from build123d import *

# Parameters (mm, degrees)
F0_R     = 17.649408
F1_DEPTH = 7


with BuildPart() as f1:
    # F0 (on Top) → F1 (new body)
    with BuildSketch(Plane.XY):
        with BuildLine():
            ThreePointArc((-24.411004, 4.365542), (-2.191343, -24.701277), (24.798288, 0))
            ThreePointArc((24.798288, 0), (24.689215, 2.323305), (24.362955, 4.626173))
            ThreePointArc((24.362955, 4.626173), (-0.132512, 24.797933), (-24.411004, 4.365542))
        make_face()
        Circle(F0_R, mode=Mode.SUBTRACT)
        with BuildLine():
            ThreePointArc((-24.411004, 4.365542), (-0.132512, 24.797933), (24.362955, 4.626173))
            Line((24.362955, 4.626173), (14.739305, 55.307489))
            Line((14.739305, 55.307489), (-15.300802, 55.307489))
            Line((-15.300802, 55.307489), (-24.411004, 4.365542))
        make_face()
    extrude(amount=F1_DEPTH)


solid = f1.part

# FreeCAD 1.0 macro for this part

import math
import FreeCAD as App
import Part
import Sketcher
Q = App.Units.Quantity

doc = App.newDocument("Part")
body = doc.addObject("PartDesign::Body", "Body")

# Sketch on XY plane
sketch1 = body.newObject("Sketcher::SketchObject", "Sketch")
sketch1.AttachmentSupport = (doc.getObject("XY_Plane"), [""])
sketch1.MapMode = "FlatFace"
sketch1.addGeometry(Part.ArcOfCircle(Part.Circle(App.Vector(0, 0, 0), App.Vector(0, 0, 1), 24.798288), math.radians(169.860694), math.radians(360)), False)
sketch1.addGeometry(Part.ArcOfCircle(Part.Circle(App.Vector(0.00006, 0.000002, 0), App.Vector(0, 0, 1), 24.798228), math.radians(-0.000004), math.radians(10.751659)), False)
sketch1.addGeometry(Part.LineSegment(App.Vector(24.362955, 4.626173, 0), App.Vector(14.739305, 55.307489, 0)), False)
sketch1.addGeometry(Part.LineSegment(App.Vector(14.739305, 55.307489, 0), App.Vector(-15.300802, 55.307489, 0)), False)
sketch1.addGeometry(Part.LineSegment(App.Vector(-15.300802, 55.307489, 0), App.Vector(-24.411004, 4.365542, 0)), False)
sketch1.addGeometry(Part.Circle(App.Vector(0, 0, 0), App.Vector(0, 0, 1), 17.649408), False)
sketch1.addConstraint(Sketcher.Constraint("Tangent", 0, 2, 1, 1))
sketch1.addConstraint(Sketcher.Constraint("Tangent", 1, 2, 2, 1))
sketch1.addConstraint(Sketcher.Constraint("Coincident", 2, 2, 3, 1))
sketch1.addConstraint(Sketcher.Constraint("Coincident", 3, 2, 4, 1))
sketch1.addConstraint(Sketcher.Constraint("Tangent", 4, 2, 0, 1))
sketch1.addConstraint(Sketcher.Constraint("Horizontal", 3))
sketch1.addConstraint(Sketcher.Constraint("Coincident", 0, 3, -1, 1))
sketch1.addConstraint(Sketcher.Constraint("Coincident", 5, 3, -1, 1))
sketch1.addConstraint(Sketcher.Constraint("PointOnObject", 0, 2, -1))
sketch1.addConstraint(Sketcher.Constraint("Diameter", 5, Q("35.298816 mm")))
sketch1.addConstraint(Sketcher.Constraint("Radius", 0, Q("24.798288 mm")))
sketch1.addConstraint(Sketcher.Constraint("Radius", 1, Q("24.798228 mm")))
sketch1.addConstraint(Sketcher.Constraint("DistanceX", 3, 2, -1, 1, Q("15.300802 mm")))
sketch1.addConstraint(Sketcher.Constraint("Distance", 2, Q("51.586921 mm")))
sketch1.addConstraint(Sketcher.Constraint("DistanceX", 3, 2, 3, 1, Q("30.040107 mm")))
pad1 = body.newObject("PartDesign::Pad", "Pad")
pad1.Profile = sketch1
pad1.Length = 7

doc.recompute()
